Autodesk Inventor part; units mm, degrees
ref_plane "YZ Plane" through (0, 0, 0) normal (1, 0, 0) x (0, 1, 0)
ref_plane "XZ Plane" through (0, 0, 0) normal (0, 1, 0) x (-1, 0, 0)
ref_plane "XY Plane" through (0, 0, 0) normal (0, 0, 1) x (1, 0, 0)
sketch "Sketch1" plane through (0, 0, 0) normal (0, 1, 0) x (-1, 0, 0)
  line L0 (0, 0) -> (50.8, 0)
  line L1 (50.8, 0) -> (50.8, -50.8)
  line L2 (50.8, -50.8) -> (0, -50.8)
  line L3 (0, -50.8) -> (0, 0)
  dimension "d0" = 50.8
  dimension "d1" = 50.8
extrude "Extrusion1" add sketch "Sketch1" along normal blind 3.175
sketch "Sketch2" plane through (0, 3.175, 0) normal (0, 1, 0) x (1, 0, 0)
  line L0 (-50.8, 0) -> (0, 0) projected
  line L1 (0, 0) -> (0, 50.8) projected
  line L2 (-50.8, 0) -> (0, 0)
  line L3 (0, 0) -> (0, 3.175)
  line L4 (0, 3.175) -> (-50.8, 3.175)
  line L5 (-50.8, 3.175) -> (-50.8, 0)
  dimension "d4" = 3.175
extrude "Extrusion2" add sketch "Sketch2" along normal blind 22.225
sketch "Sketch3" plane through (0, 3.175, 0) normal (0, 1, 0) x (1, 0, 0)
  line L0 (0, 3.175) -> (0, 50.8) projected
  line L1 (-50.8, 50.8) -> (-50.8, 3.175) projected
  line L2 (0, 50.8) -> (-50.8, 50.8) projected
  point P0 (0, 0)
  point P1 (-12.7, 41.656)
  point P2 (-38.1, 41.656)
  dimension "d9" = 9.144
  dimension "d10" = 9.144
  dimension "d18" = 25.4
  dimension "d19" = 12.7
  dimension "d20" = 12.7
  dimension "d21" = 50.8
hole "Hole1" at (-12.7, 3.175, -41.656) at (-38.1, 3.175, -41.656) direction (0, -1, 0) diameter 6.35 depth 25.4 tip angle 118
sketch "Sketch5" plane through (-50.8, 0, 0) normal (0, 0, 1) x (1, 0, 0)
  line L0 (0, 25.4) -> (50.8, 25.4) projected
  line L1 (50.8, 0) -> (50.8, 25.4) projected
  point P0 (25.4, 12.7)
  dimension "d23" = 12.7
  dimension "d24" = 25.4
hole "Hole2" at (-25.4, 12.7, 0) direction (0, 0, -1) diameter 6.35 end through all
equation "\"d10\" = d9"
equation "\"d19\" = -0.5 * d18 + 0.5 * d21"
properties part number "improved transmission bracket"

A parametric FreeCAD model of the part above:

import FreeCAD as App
import Part
import Sketcher

V = App.Vector
Q = App.Units.Quantity


def add_polygon(sketch, points):
    """Adds a closed chain of lines whose ends are joined by coincident constraints."""
    first, n = sketch.GeometryCount, len(points)
    for a, b in zip(points, points[1:] + points[:1]):
        sketch.addGeometry(Part.LineSegment(App.Vector(*a, 0), App.Vector(*b, 0)), False)
    for i in range(n):
        sketch.addConstraint(Sketcher.Constraint("Coincident", first + i, 2, first + (i + 1) % n, 1))

doc = App.newDocument("Part")
body = doc.addObject("PartDesign::Body", "Body")

sketch1 = body.newObject("Sketcher::SketchObject", "Sketch")
sketch1.AttachmentSupport = (doc.getObject("XZ_Plane"), [""])
sketch1.MapMode = "FlatFace"
add_polygon(sketch1, [(-51, 0), (0, 0), (0, -51), (-51, -51)])
sketch1.addConstraint([
    Sketcher.Constraint("Horizontal", 0),
    Sketcher.Constraint("Vertical", 1),
    Sketcher.Constraint("Horizontal", 2),
    Sketcher.Constraint("Vertical", 3),
    Sketcher.Constraint("Coincident", 0, 2, -1, 1),
    Sketcher.Constraint("Equal", 2, 1),
    Sketcher.Constraint("DistanceX", 0, 1, 0, 2, Q("2 in")),
])
pad1 = body.newObject("PartDesign::Pad", "Pad")
pad1.Profile = sketch1
pad1.Length = Q("0.125 in")
pad1.Reversed = True

sketch2 = body.newObject("Sketcher::SketchObject", "Sketch001")
sketch2.AttachmentSupport = (doc.getObject("XZ_Plane"), [""])
sketch2.MapMode = "FlatFace"
sketch2.AttachmentOffset = App.Placement(V(0, 0, -0.125 * 25.4), App.Rotation())
add_polygon(sketch2, [(-50.8, -3.2), (-50.8, 0), (0, 0), (0, -3.2)])
sketch2.addConstraint([
    Sketcher.Constraint("Vertical", 0),
    Sketcher.Constraint("Horizontal", 1),
    Sketcher.Constraint("Vertical", 2),
    Sketcher.Constraint("Horizontal", 3),
    Sketcher.Constraint("Coincident", 1, 2, -1, 1),
    Sketcher.Constraint("DistanceX", 1, 1, 1, 2, Q("2 in")),
    Sketcher.Constraint("DistanceY", 0, 1, 0, 2, Q("0.125 in")),
])
pad2 = body.newObject("PartDesign::Pad", "Pad001")
pad2.Profile = sketch2
pad2.Length = Q("0.875 in")
pad2.Reversed = True

sketch3 = body.newObject("Sketcher::SketchObject", "Sketch002")
sketch3.AttachmentSupport = (doc.getObject("XZ_Plane"), [""])
sketch3.MapMode = "FlatFace"
sketch3.AttachmentOffset = App.Placement(V(0, 0, -0.125 * 25.4), App.Rotation())
sketch3.addGeometry([
    Part.Circle(V(-12.7, -41.7, 0), V(0, 0, 1), 3.2),
    Part.Circle(V(-38.1, -41.7, 0), V(0, 0, 1), 3.2),
], False)
sketch3.addConstraint([
    Sketcher.Constraint("Equal", 0, 1),
    Sketcher.Constraint("Horizontal", 0, 3, 1, 3),
    Sketcher.Constraint("Diameter", 0, Q("0.25 in")),
    Sketcher.Constraint("DistanceX", 1, 3, 0, 3, Q("1 in")),
    Sketcher.Constraint("DistanceX", 0, 3, -1, 1, Q("0.5 in")),
    Sketcher.Constraint("DistanceY", 0, 3, -1, 1, Q("1.64 in")),
])
doc.recompute()
hole = body.newObject("PartDesign::Hole", "Hole")
hole.Profile = sketch3
hole.ThreadType = "None"
hole.Diameter = Q("0.25 in")
hole.DepthType = "Dimension"
hole.Depth = Q("1 in")
hole.DrillPoint = "Angled"
hole.DrillPointAngle = 118
hole.Reversed = True

sketch4 = body.newObject("Sketcher::SketchObject", "Sketch003")
sketch4.AttachmentSupport = (doc.getObject("XY_Plane"), [""])
sketch4.MapMode = "FlatFace"
sketch4.addGeometry(Part.Circle(V(-25.4, 12.7, 0), V(0, 0, 1), 3.2), False)
sketch4.addConstraint([
    Sketcher.Constraint("Diameter", 0, Q("0.25 in")),
    Sketcher.Constraint("DistanceX", 0, 3, -1, 1, Q("1 in")),
    Sketcher.Constraint("DistanceY", -1, 1, 0, 3, Q("0.5 in")),
])
doc.recompute()
hole2 = body.newObject("PartDesign::Hole", "Hole001")
hole2.Profile = sketch4
hole2.ThreadType = "None"
hole2.Diameter = Q("0.25 in")
hole2.DepthType = "ThroughAll"

doc.recompute()
